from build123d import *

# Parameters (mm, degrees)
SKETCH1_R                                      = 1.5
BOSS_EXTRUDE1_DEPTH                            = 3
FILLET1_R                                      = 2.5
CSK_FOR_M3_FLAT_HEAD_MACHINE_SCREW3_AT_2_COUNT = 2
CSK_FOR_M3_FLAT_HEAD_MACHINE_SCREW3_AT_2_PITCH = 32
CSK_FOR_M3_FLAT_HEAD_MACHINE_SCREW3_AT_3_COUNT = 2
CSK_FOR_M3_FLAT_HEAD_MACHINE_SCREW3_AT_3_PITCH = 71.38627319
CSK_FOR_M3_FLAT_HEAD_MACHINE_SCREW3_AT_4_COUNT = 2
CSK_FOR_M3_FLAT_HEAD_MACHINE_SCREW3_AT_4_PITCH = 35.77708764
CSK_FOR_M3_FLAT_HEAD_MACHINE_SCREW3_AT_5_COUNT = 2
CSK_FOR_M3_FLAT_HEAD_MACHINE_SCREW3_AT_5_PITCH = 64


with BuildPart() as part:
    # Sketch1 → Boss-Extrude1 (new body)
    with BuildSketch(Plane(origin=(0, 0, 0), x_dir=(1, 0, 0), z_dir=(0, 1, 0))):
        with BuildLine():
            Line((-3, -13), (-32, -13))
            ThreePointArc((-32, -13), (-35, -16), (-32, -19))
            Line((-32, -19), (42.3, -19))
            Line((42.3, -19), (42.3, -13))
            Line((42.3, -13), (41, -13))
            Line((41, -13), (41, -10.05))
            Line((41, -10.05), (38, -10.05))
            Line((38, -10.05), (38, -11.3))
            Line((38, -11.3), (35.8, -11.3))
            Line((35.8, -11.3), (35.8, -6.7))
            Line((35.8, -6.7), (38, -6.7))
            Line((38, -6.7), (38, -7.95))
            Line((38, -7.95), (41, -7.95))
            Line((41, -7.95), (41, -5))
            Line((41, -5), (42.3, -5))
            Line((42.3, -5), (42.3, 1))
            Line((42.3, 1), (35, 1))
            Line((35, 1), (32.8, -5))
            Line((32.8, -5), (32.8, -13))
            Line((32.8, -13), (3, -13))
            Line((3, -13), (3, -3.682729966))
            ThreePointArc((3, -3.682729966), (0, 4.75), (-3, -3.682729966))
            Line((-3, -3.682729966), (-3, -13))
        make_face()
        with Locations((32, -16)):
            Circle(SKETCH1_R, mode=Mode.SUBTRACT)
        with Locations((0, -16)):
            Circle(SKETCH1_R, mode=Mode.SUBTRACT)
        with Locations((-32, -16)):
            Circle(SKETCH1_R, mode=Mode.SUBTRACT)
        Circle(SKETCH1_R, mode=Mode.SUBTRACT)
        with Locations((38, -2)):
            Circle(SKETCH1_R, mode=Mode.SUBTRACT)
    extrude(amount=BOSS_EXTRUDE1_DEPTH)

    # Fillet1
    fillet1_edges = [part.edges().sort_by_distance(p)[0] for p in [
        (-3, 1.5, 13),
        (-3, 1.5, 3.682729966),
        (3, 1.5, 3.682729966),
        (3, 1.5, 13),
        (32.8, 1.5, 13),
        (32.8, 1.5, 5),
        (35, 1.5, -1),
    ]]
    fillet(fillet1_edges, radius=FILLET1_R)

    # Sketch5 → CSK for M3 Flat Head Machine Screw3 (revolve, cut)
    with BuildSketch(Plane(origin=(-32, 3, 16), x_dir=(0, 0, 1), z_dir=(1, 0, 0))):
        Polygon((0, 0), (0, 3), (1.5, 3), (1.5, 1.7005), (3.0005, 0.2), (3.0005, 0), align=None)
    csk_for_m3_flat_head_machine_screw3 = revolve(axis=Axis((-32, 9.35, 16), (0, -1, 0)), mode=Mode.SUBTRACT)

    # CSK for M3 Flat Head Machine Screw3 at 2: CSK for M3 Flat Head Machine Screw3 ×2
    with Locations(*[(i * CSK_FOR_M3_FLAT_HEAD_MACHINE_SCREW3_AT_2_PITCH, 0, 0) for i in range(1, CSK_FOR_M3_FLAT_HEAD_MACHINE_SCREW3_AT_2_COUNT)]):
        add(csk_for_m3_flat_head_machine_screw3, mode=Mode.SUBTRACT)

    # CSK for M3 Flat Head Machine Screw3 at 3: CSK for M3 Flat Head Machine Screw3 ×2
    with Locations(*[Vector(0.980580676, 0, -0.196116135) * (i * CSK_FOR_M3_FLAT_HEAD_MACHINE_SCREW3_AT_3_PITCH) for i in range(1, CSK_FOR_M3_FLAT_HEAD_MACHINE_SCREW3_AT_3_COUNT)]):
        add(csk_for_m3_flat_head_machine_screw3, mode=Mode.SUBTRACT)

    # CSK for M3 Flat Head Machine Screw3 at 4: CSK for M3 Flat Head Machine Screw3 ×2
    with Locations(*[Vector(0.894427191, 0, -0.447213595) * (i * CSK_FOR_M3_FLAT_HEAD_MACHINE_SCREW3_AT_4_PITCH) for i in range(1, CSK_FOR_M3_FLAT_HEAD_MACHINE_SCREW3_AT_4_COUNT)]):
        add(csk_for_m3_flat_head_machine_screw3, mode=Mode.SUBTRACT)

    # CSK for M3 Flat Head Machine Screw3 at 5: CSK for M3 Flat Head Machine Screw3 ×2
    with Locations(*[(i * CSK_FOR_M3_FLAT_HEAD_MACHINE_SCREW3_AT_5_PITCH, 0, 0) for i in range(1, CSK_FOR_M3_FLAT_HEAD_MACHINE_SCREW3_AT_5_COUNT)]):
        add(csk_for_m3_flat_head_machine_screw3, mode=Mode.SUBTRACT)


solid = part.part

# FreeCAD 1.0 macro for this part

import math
import FreeCAD as App
import Part
import Sketcher

V = App.Vector
Q = App.Units.Quantity


def edges_at(feature, points):
    """Names of the edges that pass closest to the given points."""
    edges = feature.Shape.Edges
    near = lambda p: min(range(len(edges)), key=lambda i: edges[i].distToShape(Part.Vertex(*p))[0])
    return sorted({f"Edge{near(p) + 1}" for p in points})

doc = App.newDocument("Part")
body = doc.addObject("PartDesign::Body", "Body")

# Sketch on XZ plane
sketch1 = doc.addObject("Sketcher::SketchObject", "Sketch")
body.addObject(sketch1)
sketch1.AttachmentSupport = (doc.XZ_Plane, [""])
sketch1.MapMode = "FlatFace"
sketch1.addGeometry(Part.LineSegment(V(-3, 13, 0), V(-32, 13, 0)), False)
sketch1.addGeometry(Part.ArcOfCircle(Part.Circle(V(-32, 16, 0), V(0, 0, 1), 3), math.radians(90), math.radians(270)), False)
sketch1.addGeometry(Part.LineSegment(V(-32, 19, 0), V(42.3, 19, 0)), False)
sketch1.addGeometry(Part.LineSegment(V(42.3, 19, 0), V(42.3, 13, 0)), False)
sketch1.addGeometry(Part.LineSegment(V(42.3, 13, 0), V(41, 13, 0)), False)
sketch1.addGeometry(Part.LineSegment(V(41, 13, 0), V(41, 10.05, 0)), False)
sketch1.addGeometry(Part.LineSegment(V(41, 10.05, 0), V(38, 10.05, 0)), False)
sketch1.addGeometry(Part.LineSegment(V(38, 10.05, 0), V(38, 11.3, 0)), False)
sketch1.addGeometry(Part.LineSegment(V(38, 11.3, 0), V(35.8, 11.3, 0)), False)
sketch1.addGeometry(Part.LineSegment(V(35.8, 11.3, 0), V(35.8, 6.7, 0)), False)
sketch1.addGeometry(Part.LineSegment(V(35.8, 6.7, 0), V(38, 6.7, 0)), False)
sketch1.addGeometry(Part.LineSegment(V(38, 6.7, 0), V(38, 7.95, 0)), False)
sketch1.addGeometry(Part.LineSegment(V(38, 7.95, 0), V(41, 7.95, 0)), False)
sketch1.addGeometry(Part.LineSegment(V(41, 7.95, 0), V(41, 5, 0)), False)
sketch1.addGeometry(Part.LineSegment(V(41, 5, 0), V(42.3, 5, 0)), False)
sketch1.addGeometry(Part.LineSegment(V(42.3, 5, 0), V(42.3, -1, 0)), False)
sketch1.addGeometry(Part.LineSegment(V(42.3, -1, 0), V(35, -1, 0)), False)
sketch1.addGeometry(Part.LineSegment(V(35, -1, 0), V(32.8, 5, 0)), False)
sketch1.addGeometry(Part.LineSegment(V(32.8, 5, 0), V(32.8, 13, 0)), False)
sketch1.addGeometry(Part.LineSegment(V(32.8, 13, 0), V(3, 13, 0)), False)
sketch1.addGeometry(Part.LineSegment(V(3, 13, 0), V(3, 3.68273, 0)), False)
sketch1.addGeometry(Part.ArcOfCircle(Part.Circle(V(0, 0, 0), V(0, 0, 1), 4.75), math.radians(129.166711), math.radians(410.833289)), False)
sketch1.addGeometry(Part.LineSegment(V(-3, 3.68273, 0), V(-3, 13, 0)), False)
sketch1.addGeometry(Part.Circle(V(-32, 16, 0), V(0, 0, 1), 1.5), False)
sketch1.addGeometry(Part.Circle(V(0, 16, 0), V(0, 0, 1), 1.5), False)
sketch1.addGeometry(Part.Circle(V(32, 16, 0), V(0, 0, 1), 1.5), False)
sketch1.addGeometry(Part.Circle(V(0, 0, 0), V(0, 0, 1), 1.5), False)
sketch1.addGeometry(Part.Circle(V(38, 2, 0), V(0, 0, 1), 1.5), False)
sketch1.addConstraint(Sketcher.Constraint("Tangent", 0, 2, 1, 2))
sketch1.addConstraint(Sketcher.Constraint("Tangent", 1, 1, 2, 1))
sketch1.addConstraint(Sketcher.Constraint("Coincident", 2, 2, 3, 1))
sketch1.addConstraint(Sketcher.Constraint("Coincident", 3, 2, 4, 1))
sketch1.addConstraint(Sketcher.Constraint("Coincident", 4, 2, 5, 1))
sketch1.addConstraint(Sketcher.Constraint("Coincident", 5, 2, 6, 1))
sketch1.addConstraint(Sketcher.Constraint("Coincident", 6, 2, 7, 1))
sketch1.addConstraint(Sketcher.Constraint("Coincident", 7, 2, 8, 1))
sketch1.addConstraint(Sketcher.Constraint("Coincident", 8, 2, 9, 1))
sketch1.addConstraint(Sketcher.Constraint("Coincident", 9, 2, 10, 1))
sketch1.addConstraint(Sketcher.Constraint("Coincident", 10, 2, 11, 1))
sketch1.addConstraint(Sketcher.Constraint("Coincident", 11, 2, 12, 1))
sketch1.addConstraint(Sketcher.Constraint("Coincident", 12, 2, 13, 1))
sketch1.addConstraint(Sketcher.Constraint("Coincident", 13, 2, 14, 1))
sketch1.addConstraint(Sketcher.Constraint("Coincident", 14, 2, 15, 1))
sketch1.addConstraint(Sketcher.Constraint("Coincident", 15, 2, 16, 1))
sketch1.addConstraint(Sketcher.Constraint("Coincident", 16, 2, 17, 1))
sketch1.addConstraint(Sketcher.Constraint("Coincident", 17, 2, 18, 1))
sketch1.addConstraint(Sketcher.Constraint("Coincident", 18, 2, 19, 1))
sketch1.addConstraint(Sketcher.Constraint("Coincident", 19, 2, 20, 1))
sketch1.addConstraint(Sketcher.Constraint("Coincident", 20, 2, 21, 2))
sketch1.addConstraint(Sketcher.Constraint("Coincident", 21, 1, 22, 1))
sketch1.addConstraint(Sketcher.Constraint("Coincident", 22, 2, 0, 1))
sketch1.addConstraint(Sketcher.Constraint("Horizontal", 0))
sketch1.addConstraint(Sketcher.Constraint("Horizontal", 2))
sketch1.addConstraint(Sketcher.Constraint("Vertical", 3))
sketch1.addConstraint(Sketcher.Constraint("Horizontal", 4))
sketch1.addConstraint(Sketcher.Constraint("Vertical", 5))
sketch1.addConstraint(Sketcher.Constraint("Horizontal", 6))
sketch1.addConstraint(Sketcher.Constraint("Vertical", 7))
sketch1.addConstraint(Sketcher.Constraint("Horizontal", 8))
sketch1.addConstraint(Sketcher.Constraint("Vertical", 9))
sketch1.addConstraint(Sketcher.Constraint("Horizontal", 10))
sketch1.addConstraint(Sketcher.Constraint("Vertical", 11))
sketch1.addConstraint(Sketcher.Constraint("Horizontal", 12))
sketch1.addConstraint(Sketcher.Constraint("Vertical", 13))
sketch1.addConstraint(Sketcher.Constraint("Horizontal", 14))
sketch1.addConstraint(Sketcher.Constraint("Vertical", 15))
sketch1.addConstraint(Sketcher.Constraint("Horizontal", 16))
sketch1.addConstraint(Sketcher.Constraint("Vertical", 18))
sketch1.addConstraint(Sketcher.Constraint("Horizontal", 19))
sketch1.addConstraint(Sketcher.Constraint("Vertical", 20))
sketch1.addConstraint(Sketcher.Constraint("Vertical", 22))
sketch1.addConstraint(Sketcher.Constraint("Coincident", 21, 3, -1, 1))
sketch1.addConstraint(Sketcher.Constraint("Coincident", 26, 3, -1, 1))
sketch1.addConstraint(Sketcher.Constraint("Coincident", 23, 3, 1, 3))
sketch1.addConstraint(Sketcher.Constraint("Equal", 23, 24))
sketch1.addConstraint(Sketcher.Constraint("Equal", 24, 25))
sketch1.addConstraint(Sketcher.Constraint("Equal", 25, 26))
sketch1.addConstraint(Sketcher.Constraint("Equal", 26, 27))
sketch1.addConstraint(Sketcher.Constraint("Symmetric", 1, 3, 25, 3, -2))
sketch1.addConstraint(Sketcher.Constraint("Symmetric", 19, 2, 22, 2, -2))
sketch1.addConstraint(Sketcher.Constraint("PointOnObject", 24, 3, -2))
sketch1.addConstraint(Sketcher.Constraint("Horizontal", 23, 3, 24, 3))
sketch1.addConstraint(Sketcher.Constraint("Horizontal", 0, 2, 3, 2))
sketch1.addConstraint(Sketcher.Constraint("Horizontal", 14, 2, 17, 2))
sketch1.addConstraint(Sketcher.Constraint("Vertical", 27, 3, 6, 2))
sketch1.addConstraint(Sketcher.Constraint("Vertical", 7, 2, 10, 2))
sketch1.addConstraint(Sketcher.Constraint("Vertical", 5, 2, 12, 2))
sketch1.addConstraint(Sketcher.Constraint("Vertical", 3, 2, 14, 2))
sketch1.addConstraint(Sketcher.Constraint("Equal", 7, 11))
sketch1.addConstraint(Sketcher.Constraint("Equal", 5, 13))
sketch1.addConstraint(Sketcher.Constraint("Equal", 3, 15))
sketch1.addConstraint(Sketcher.Constraint("Diameter", 23, Q("3 mm")))
sketch1.addConstraint(Sketcher.Constraint("Radius", 1, Q("3 mm")))
sketch1.addConstraint(Sketcher.Constraint("DistanceX", 0, 2, 0, 1, Q("29 mm")))
sketch1.addConstraint(Sketcher.Constraint("DistanceX", 6, 2, 6, 1, Q("3 mm")))
sketch1.addConstraint(Sketcher.Constraint("DistanceY", 18, 1, 18, 2, Q("8 mm")))
sketch1.addConstraint(Sketcher.Constraint("Radius", 21, Q("4.75 mm")))
sketch1.addConstraint(Sketcher.Constraint("DistanceX", 2, 1, 2, 2, Q("74.3 mm")))
sketch1.addConstraint(Sketcher.Constraint("DistanceX", 4, 2, 4, 1, Q("1.3 mm")))
sketch1.addConstraint(Sketcher.Constraint("DistanceX", 8, 2, 8, 1, Q("2.2 mm")))
sketch1.addConstraint(Sketcher.Constraint("DistanceX", 16, 2, 16, 1, Q("7.3 mm")))
sketch1.addConstraint(Sketcher.Constraint("DistanceX", 19, 2, 19, 1, Q("29.8 mm")))
sketch1.addConstraint(Sketcher.Constraint("DistanceY", 9, 2, 9, 1, Q("4.6 mm")))
sketch1.addConstraint(Sketcher.Constraint("DistanceX", 1, 3, -1, 1, Q("32 mm")))
sketch1.addConstraint(Sketcher.Constraint("DistanceY", -1, 1, 1, 3, Q("16 mm")))
sketch1.addConstraint(Sketcher.Constraint("DistanceY", -1, 1, 27, 3, Q("2 mm")))
sketch1.addConstraint(Sketcher.Constraint("DistanceY", 5, 2, 5, 1, Q("2.95 mm")))
pad1 = doc.addObject("PartDesign::Pad", "Pad")
body.addObject(pad1)
pad1.Profile = sketch1
pad1.Length = 3
pad1.Reversed = True
doc.recompute()

fillet = doc.addObject("PartDesign::Fillet", "Fillet")
body.addObject(fillet)
fillet.Base = (pad1, edges_at(pad1, [
    (-3, 1.5, 13),
    (-3, 1.5, 3.683),
    (3, 1.5, 3.683),
    (3, 1.5, 13),
    (32.8, 1.5, 13),
    (32.8, 1.5, 5),
    (35, 1.5, -1),
]))
fillet.Radius = 2.5

# Sketch on YZ plane
sketch2 = doc.addObject("Sketcher::SketchObject", "Sketch001")
body.addObject(sketch2)
sketch2.AttachmentSupport = (doc.YZ_Plane, [""])
sketch2.MapMode = "FlatFace"
sketch2.AttachmentOffset = App.Placement(V(0, 0, -32), App.Rotation())
sketch2.addGeometry(Part.LineSegment(V(0, 16, 0), V(3, 16, 0)), False)
sketch2.addGeometry(Part.LineSegment(V(3, 16, 0), V(3, 19.0005, 0)), False)
sketch2.addGeometry(Part.LineSegment(V(3, 19.0005, 0), V(2.8, 19.0005, 0)), False)
sketch2.addGeometry(Part.LineSegment(V(2.8, 19.0005, 0), V(1.2995, 17.5, 0)), False)
sketch2.addGeometry(Part.LineSegment(V(1.2995, 17.5, 0), V(0, 17.5, 0)), False)
sketch2.addGeometry(Part.LineSegment(V(0, 17.5, 0), V(0, 16, 0)), False)
sketch2.addGeometry(Part.LineSegment(V(3, 16, 0), V(0, 16, 0)), True)  # axis
sketch2.addConstraint(Sketcher.Constraint("Coincident", 0, 2, 1, 1))
sketch2.addConstraint(Sketcher.Constraint("Coincident", 1, 2, 2, 1))
sketch2.addConstraint(Sketcher.Constraint("Coincident", 2, 2, 3, 1))
sketch2.addConstraint(Sketcher.Constraint("Coincident", 3, 2, 4, 1))
sketch2.addConstraint(Sketcher.Constraint("Coincident", 4, 2, 5, 1))
sketch2.addConstraint(Sketcher.Constraint("Coincident", 5, 2, 0, 1))
sketch2.addConstraint(Sketcher.Constraint("Horizontal", 0))
sketch2.addConstraint(Sketcher.Constraint("Vertical", 1))
sketch2.addConstraint(Sketcher.Constraint("Horizontal", 2))
sketch2.addConstraint(Sketcher.Constraint("Horizontal", 4))
sketch2.addConstraint(Sketcher.Constraint("Vertical", 5))
sketch2.addConstraint(Sketcher.Constraint("Horizontal", 6))
sketch2.addConstraint(Sketcher.Constraint("Coincident", 6, 1, 0, 2))
sketch2.addConstraint(Sketcher.Constraint("PointOnObject", 4, 2, -2))
sketch2.addConstraint(Sketcher.Constraint("PointOnObject", 6, 2, -2))
sketch2.addConstraint(Sketcher.Constraint("DistanceX", 0, 1, 0, 2, Q("3 mm")))
sketch2.addConstraint(Sketcher.Constraint("Angle", 3, Q("-135 deg")))
sketch2.addConstraint(Sketcher.Constraint("DistanceX", 2, 2, 2, 1, Q("0.2 mm")))
sketch2.addConstraint(Sketcher.Constraint("DistanceY", 5, 2, 5, 1, Q("1.5 mm")))
sketch2.addConstraint(Sketcher.Constraint("DistanceY", -1, 1, 0, 2, Q("16 mm")))
sketch2.addConstraint(Sketcher.Constraint("DistanceX", 4, 2, 4, 1, Q("1.2995 mm")))
groove = doc.addObject("PartDesign::Groove", "Groove")
body.addObject(groove)
groove.Profile = sketch2
groove.ReferenceAxis = (sketch2, ["Axis0"])
groove.Angle = 360
doc.recompute()

linearpattern = doc.addObject("PartDesign::LinearPattern", "LinearPattern")
body.addObject(linearpattern)
linearpattern.Originals = [groove]
linearpattern.Direction = (doc.X_Axis, [""])
linearpattern.Mode = "offset"
linearpattern.Offset = 32
linearpattern.Occurrences = 2
body.Tip = linearpattern
doc.recompute()

datumline = doc.addObject("PartDesign::Line", "DatumLine")
body.addObject(datumline)
datumline.Placement = App.Placement(V(0, 0, 0), App.Rotation(V(0, 0, 1), V(0.980580676, 0, -0.196116135)))
linearpattern2 = doc.addObject("PartDesign::LinearPattern", "LinearPattern001")
body.addObject(linearpattern2)
linearpattern2.Originals = [groove]
linearpattern2.Direction = (datumline, [""])
linearpattern2.Mode = "offset"
linearpattern2.Offset = 71.386273
linearpattern2.Occurrences = 2
body.Tip = linearpattern2
doc.recompute()

datumline2 = doc.addObject("PartDesign::Line", "DatumLine001")
body.addObject(datumline2)
datumline2.Placement = App.Placement(V(0, 0, 0), App.Rotation(V(0, 0, 1), V(0.894427191, 0, -0.447213595)))
linearpattern3 = doc.addObject("PartDesign::LinearPattern", "LinearPattern002")
body.addObject(linearpattern3)
linearpattern3.Originals = [groove]
linearpattern3.Direction = (datumline2, [""])
linearpattern3.Mode = "offset"
linearpattern3.Offset = 35.777088
linearpattern3.Occurrences = 2
body.Tip = linearpattern3
doc.recompute()

linearpattern4 = doc.addObject("PartDesign::LinearPattern", "LinearPattern003")
body.addObject(linearpattern4)
linearpattern4.Originals = [groove]
linearpattern4.Direction = (doc.X_Axis, [""])
linearpattern4.Mode = "offset"
linearpattern4.Offset = 64
linearpattern4.Occurrences = 2
body.Tip = linearpattern4

doc.recompute()
